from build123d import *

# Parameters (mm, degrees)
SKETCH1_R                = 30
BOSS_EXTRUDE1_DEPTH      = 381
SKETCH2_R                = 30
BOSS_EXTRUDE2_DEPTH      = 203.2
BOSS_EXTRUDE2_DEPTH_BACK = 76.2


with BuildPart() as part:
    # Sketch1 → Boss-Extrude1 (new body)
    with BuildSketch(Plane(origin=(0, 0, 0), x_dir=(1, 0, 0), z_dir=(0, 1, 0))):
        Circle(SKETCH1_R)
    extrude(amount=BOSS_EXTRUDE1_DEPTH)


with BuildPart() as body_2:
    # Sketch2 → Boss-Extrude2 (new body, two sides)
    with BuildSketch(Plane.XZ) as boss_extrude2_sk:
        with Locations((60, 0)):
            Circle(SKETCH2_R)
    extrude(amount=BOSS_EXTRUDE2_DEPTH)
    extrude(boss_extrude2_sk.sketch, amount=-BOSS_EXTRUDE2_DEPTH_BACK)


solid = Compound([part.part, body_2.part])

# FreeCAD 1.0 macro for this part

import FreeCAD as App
import Part
import Sketcher

V = App.Vector
Q = App.Units.Quantity

doc = App.newDocument("Part")
body = doc.addObject("PartDesign::Body", "Body")

# Sketch on XZ plane
sketch1 = body.newObject("Sketcher::SketchObject", "Sketch")
sketch1.AttachmentSupport = (doc.getObject("XZ_Plane"), [""])
sketch1.MapMode = "FlatFace"
sketch1.addGeometry(Part.Circle(V(0, 0, 0), V(0, 0, 1), 30), False)
sketch1.addConstraint(Sketcher.Constraint("Coincident", 0, 3, -1, 1))
sketch1.addConstraint(Sketcher.Constraint("Diameter", 0, Q("60 mm")))
pad1 = body.newObject("PartDesign::Pad", "Pad")
pad1.Profile = sketch1
pad1.Length = Q("15 in")
pad1.Reversed = True
body2 = doc.addObject("PartDesign::Body", "Body001")

# Sketch on XZ plane
sketch2 = body2.newObject("Sketcher::SketchObject", "Sketch001")
sketch2.AttachmentSupport = (doc.getObject("XZ_Plane001"), [""])
sketch2.MapMode = "FlatFace"
sketch2.addGeometry(Part.Circle(V(60, 0, 0), V(0, 0, 1), 30), False)
sketch2.addConstraint(Sketcher.Constraint("PointOnObject", 0, 3, -1))
sketch2.addConstraint(Sketcher.Constraint("Diameter", 0, Q("60 mm")))
sketch2.addConstraint(Sketcher.Constraint("DistanceX", -1, 1, 0, 3, Q("60 mm")))
pad2 = body2.newObject("PartDesign::Pad", "Pad001")
pad2.Profile = sketch2
pad2.Type = "TwoLengths"
pad2.Length = Q("8 in")
pad2.Length2 = Q("3 in")

doc.recompute()
